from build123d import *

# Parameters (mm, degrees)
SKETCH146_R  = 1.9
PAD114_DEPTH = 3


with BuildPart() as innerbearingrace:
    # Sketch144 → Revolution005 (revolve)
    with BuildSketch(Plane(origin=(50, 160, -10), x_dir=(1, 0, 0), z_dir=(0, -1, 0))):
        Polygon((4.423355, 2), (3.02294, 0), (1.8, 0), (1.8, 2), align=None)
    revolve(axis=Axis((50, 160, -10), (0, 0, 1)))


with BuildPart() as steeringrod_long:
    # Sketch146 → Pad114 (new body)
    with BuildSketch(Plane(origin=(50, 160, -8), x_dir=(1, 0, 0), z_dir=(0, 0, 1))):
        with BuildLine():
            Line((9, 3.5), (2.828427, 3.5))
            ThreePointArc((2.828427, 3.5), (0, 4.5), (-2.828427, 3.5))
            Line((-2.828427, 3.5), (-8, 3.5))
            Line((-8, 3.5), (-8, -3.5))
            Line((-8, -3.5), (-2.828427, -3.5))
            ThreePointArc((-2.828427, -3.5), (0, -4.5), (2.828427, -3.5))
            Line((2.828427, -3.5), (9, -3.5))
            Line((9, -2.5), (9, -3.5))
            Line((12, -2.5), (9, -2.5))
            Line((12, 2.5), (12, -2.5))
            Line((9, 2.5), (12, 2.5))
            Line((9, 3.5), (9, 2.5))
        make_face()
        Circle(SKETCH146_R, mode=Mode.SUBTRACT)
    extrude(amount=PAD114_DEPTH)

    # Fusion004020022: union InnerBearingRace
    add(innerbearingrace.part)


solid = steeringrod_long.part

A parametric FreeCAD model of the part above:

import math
import FreeCAD as App
import Part
import Sketcher
Q = App.Units.Quantity

doc = App.newDocument("Part")
body = doc.addObject("PartDesign::Body", "Body")

sketch1 = body.newObject("Sketcher::SketchObject", "Sketch")
sketch1.AttachmentSupport = (doc.getObject("XZ_Plane"), [""])
sketch1.MapMode = "FlatFace"
sketch1.AttachmentOffset = App.Placement(App.Vector(0, 0, -160), App.Rotation())
sketch1.addGeometry(Part.LineSegment(App.Vector(53.02294, -10, 0), App.Vector(54.423355, -8, 0)), False)
sketch1.addGeometry(Part.LineSegment(App.Vector(54.423355, -8, 0), App.Vector(51.8, -8, 0)), False)
sketch1.addGeometry(Part.LineSegment(App.Vector(51.8, -8, 0), App.Vector(51.8, -10, 0)), False)
sketch1.addGeometry(Part.LineSegment(App.Vector(51.8, -10, 0), App.Vector(53.02294, -10, 0)), False)
sketch1.addGeometry(Part.LineSegment(App.Vector(50, -10, 0), App.Vector(50, -8, 0)), True)
sketch1.addConstraint(Sketcher.Constraint("Coincident", 0, 2, 1, 1))
sketch1.addConstraint(Sketcher.Constraint("Coincident", 1, 2, 2, 1))
sketch1.addConstraint(Sketcher.Constraint("Coincident", 2, 2, 3, 1))
sketch1.addConstraint(Sketcher.Constraint("Coincident", 3, 2, 0, 1))
sketch1.addConstraint(Sketcher.Constraint("Horizontal", 1))
sketch1.addConstraint(Sketcher.Constraint("Vertical", 2))
sketch1.addConstraint(Sketcher.Constraint("Horizontal", 3))
sketch1.addConstraint(Sketcher.Constraint("Vertical", 4))
sketch1.addConstraint(Sketcher.Constraint("Horizontal", 3, 2, 4, 1))
sketch1.addConstraint(Sketcher.Constraint("Horizontal", 1, 2, 4, 2))
sketch1.addConstraint(Sketcher.Constraint("DistanceY", 2, 2, 2, 1, 2.0))
sketch1.addConstraint(Sketcher.Constraint("Angle", 0, Q("55.000001 deg")))
sketch1.addConstraint(Sketcher.Constraint("DistanceY", 0, 2, -1, 1, 8.0))
sketch1.addConstraint(Sketcher.Constraint("DistanceX", -1, 1, 4, 1, 50.0))
sketch1.addConstraint(Sketcher.Constraint("DistanceX", -1, 1, 1, 2, 51.8))
sketch1.addConstraint(Sketcher.Constraint("DistanceX", 3, 1, 3, 2, 1.22294))
revolution = body.newObject("PartDesign::Revolution", "Revolution")
revolution.Profile = sketch1
revolution.ReferenceAxis = (sketch1, ["Axis0"])
revolution.Angle = 360
body2 = doc.addObject("PartDesign::Body", "Body001")

sketch2 = body2.newObject("Sketcher::SketchObject", "Sketch001")
sketch2.AttachmentSupport = (doc.getObject("XY_Plane001"), [""])
sketch2.MapMode = "FlatFace"
sketch2.AttachmentOffset = App.Placement(App.Vector(0, 0, -8), App.Rotation())
sketch2.addGeometry(Part.LineSegment(App.Vector(59, 163.5, 0), App.Vector(52.828427, 163.5, 0)), False)
sketch2.addGeometry(Part.ArcOfCircle(Part.Circle(App.Vector(50, 160, 0), App.Vector(0, 0, 1), 4.5), math.radians(51.057557), math.radians(128.942443)), False)
sketch2.addGeometry(Part.LineSegment(App.Vector(47.171573, 163.5, 0), App.Vector(42, 163.5, 0)), False)
sketch2.addGeometry(Part.LineSegment(App.Vector(42, 163.5, 0), App.Vector(42, 156.5, 0)), False)
sketch2.addGeometry(Part.LineSegment(App.Vector(42, 156.5, 0), App.Vector(47.171573, 156.5, 0)), False)
sketch2.addGeometry(Part.ArcOfCircle(Part.Circle(App.Vector(50, 160, 0), App.Vector(0, 0, 1), 4.5), math.radians(-128.942443), math.radians(-51.057557)), False)
sketch2.addGeometry(Part.LineSegment(App.Vector(52.828427, 156.5, 0), App.Vector(59, 156.5, 0)), False)
sketch2.addGeometry(Part.LineSegment(App.Vector(59, 156.5, 0), App.Vector(59, 157.5, 0)), False)
sketch2.addGeometry(Part.LineSegment(App.Vector(59, 157.5, 0), App.Vector(62, 157.5, 0)), False)
sketch2.addGeometry(Part.LineSegment(App.Vector(62, 157.5, 0), App.Vector(62, 162.5, 0)), False)
sketch2.addGeometry(Part.LineSegment(App.Vector(62, 162.5, 0), App.Vector(59, 162.5, 0)), False)
sketch2.addGeometry(Part.LineSegment(App.Vector(59, 162.5, 0), App.Vector(59, 163.5, 0)), False)
sketch2.addGeometry(Part.Circle(App.Vector(50, 160, 0), App.Vector(0, 0, 1), 1.9), False)
sketch2.addConstraint(Sketcher.Constraint("Coincident", 0, 2, 1, 1))
sketch2.addConstraint(Sketcher.Constraint("Coincident", 1, 2, 2, 1))
sketch2.addConstraint(Sketcher.Constraint("Coincident", 2, 2, 3, 1))
sketch2.addConstraint(Sketcher.Constraint("Coincident", 3, 2, 4, 1))
sketch2.addConstraint(Sketcher.Constraint("Coincident", 4, 2, 5, 1))
sketch2.addConstraint(Sketcher.Constraint("Coincident", 5, 2, 6, 1))
sketch2.addConstraint(Sketcher.Constraint("Coincident", 6, 2, 7, 1))
sketch2.addConstraint(Sketcher.Constraint("Coincident", 7, 2, 8, 1))
sketch2.addConstraint(Sketcher.Constraint("Coincident", 8, 2, 9, 1))
sketch2.addConstraint(Sketcher.Constraint("Coincident", 9, 2, 10, 1))
sketch2.addConstraint(Sketcher.Constraint("Coincident", 10, 2, 11, 1))
sketch2.addConstraint(Sketcher.Constraint("Coincident", 11, 2, 0, 1))
sketch2.addConstraint(Sketcher.Constraint("Horizontal", 0))
sketch2.addConstraint(Sketcher.Constraint("Horizontal", 2))
sketch2.addConstraint(Sketcher.Constraint("Vertical", 3))
sketch2.addConstraint(Sketcher.Constraint("Horizontal", 4))
sketch2.addConstraint(Sketcher.Constraint("Horizontal", 6))
sketch2.addConstraint(Sketcher.Constraint("Vertical", 7))
sketch2.addConstraint(Sketcher.Constraint("Horizontal", 8))
sketch2.addConstraint(Sketcher.Constraint("Vertical", 9))
sketch2.addConstraint(Sketcher.Constraint("Horizontal", 10))
sketch2.addConstraint(Sketcher.Constraint("Vertical", 11))
sketch2.addConstraint(Sketcher.Constraint("Coincident", 5, 3, 1, 3))
sketch2.addConstraint(Sketcher.Constraint("Coincident", 12, 3, 1, 3))
sketch2.addConstraint(Sketcher.Constraint("Equal", 1, 5))
sketch2.addConstraint(Sketcher.Constraint("Horizontal", 0, 2, 1, 2))
sketch2.addConstraint(Sketcher.Constraint("Horizontal", 4, 2, 5, 2))
sketch2.addConstraint(Sketcher.Constraint("Vertical", 1, 2, 4, 2))
sketch2.addConstraint(Sketcher.Constraint("Vertical", 7, 2, 10, 2))
sketch2.addConstraint(Sketcher.Constraint("Equal", 7, 11))
sketch2.addConstraint(Sketcher.Constraint("Diameter", 12, 3.8))
sketch2.addConstraint(Sketcher.Constraint("Radius", 1, 4.5))
sketch2.addConstraint(Sketcher.Constraint("DistanceX", 8, 1, 8, 2, 3.0))
sketch2.addConstraint(Sketcher.Constraint("DistanceY", 3, 2, 3, 1, 7.0))
sketch2.addConstraint(Sketcher.Constraint("DistanceY", 7, 1, 7, 2, 1.0))
sketch2.addConstraint(Sketcher.Constraint("DistanceX", -1, 1, 1, 3, 50.0))
sketch2.addConstraint(Sketcher.Constraint("DistanceY", -1, 1, 1, 3, 160.0))
sketch2.addConstraint(Sketcher.Constraint("DistanceX", -1, 1, 2, 2, 42.0))
sketch2.addConstraint(Sketcher.Constraint("DistanceX", -1, 1, 6, 2, 59.0))
pad1 = body2.newObject("PartDesign::Pad", "Pad")
pad1.Profile = sketch2
pad1.Length = 3
doc.recompute()

boolean = body2.newObject("PartDesign::Boolean", "Boolean")
boolean.Type = "Fuse"
boolean.addObjects([body])

doc.recompute()
